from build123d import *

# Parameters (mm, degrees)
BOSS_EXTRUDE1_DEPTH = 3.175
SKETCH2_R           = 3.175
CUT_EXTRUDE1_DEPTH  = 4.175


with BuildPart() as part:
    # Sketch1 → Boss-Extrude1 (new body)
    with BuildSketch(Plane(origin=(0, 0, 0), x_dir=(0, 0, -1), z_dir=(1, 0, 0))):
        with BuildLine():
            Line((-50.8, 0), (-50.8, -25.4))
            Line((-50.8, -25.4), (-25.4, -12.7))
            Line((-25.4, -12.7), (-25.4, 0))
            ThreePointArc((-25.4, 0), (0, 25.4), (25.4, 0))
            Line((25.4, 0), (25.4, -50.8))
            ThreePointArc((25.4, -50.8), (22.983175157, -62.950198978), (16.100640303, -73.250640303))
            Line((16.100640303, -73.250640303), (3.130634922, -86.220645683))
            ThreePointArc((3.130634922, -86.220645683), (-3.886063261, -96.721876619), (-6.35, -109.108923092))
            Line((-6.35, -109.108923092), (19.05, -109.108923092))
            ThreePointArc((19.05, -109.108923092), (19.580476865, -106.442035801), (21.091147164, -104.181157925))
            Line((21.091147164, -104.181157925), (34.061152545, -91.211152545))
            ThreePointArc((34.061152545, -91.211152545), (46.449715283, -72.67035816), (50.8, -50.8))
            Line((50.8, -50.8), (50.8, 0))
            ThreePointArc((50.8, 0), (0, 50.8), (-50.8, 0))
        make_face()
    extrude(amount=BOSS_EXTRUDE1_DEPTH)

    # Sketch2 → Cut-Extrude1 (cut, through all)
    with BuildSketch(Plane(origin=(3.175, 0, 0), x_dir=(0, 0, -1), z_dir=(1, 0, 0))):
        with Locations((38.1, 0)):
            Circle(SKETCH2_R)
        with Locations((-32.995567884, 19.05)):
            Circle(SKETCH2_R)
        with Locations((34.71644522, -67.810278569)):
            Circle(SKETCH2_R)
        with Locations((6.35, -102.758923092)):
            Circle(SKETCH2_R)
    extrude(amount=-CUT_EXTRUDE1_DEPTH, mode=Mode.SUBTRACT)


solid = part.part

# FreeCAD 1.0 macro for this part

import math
import FreeCAD as App
import Part
import Sketcher
from FreeCAD import Vector
Q = App.Units.Quantity

doc = App.newDocument("Part")
body = doc.addObject("PartDesign::Body", "Body")

# Sketch on YZ plane
sketch1 = body.newObject("Sketcher::SketchObject", "Sketch")
sketch1.AttachmentSupport = (doc.getObject("YZ_Plane"), [""])
sketch1.MapMode = "FlatFace"
sketch1.addGeometry([
    Part.LineSegment(Vector(0, 51, 0), Vector(-25, 51, 0)),  # 0
    Part.LineSegment(Vector(-25, 51, 0), Vector(-13, 25, 0)),  # 1
    Part.LineSegment(Vector(-13, 25, 0), Vector(0, 25, 0)),  # 2
    Part.ArcOfCircle(Part.Circle(Vector(0, 0, 0), Vector(0, 0, 1), 25), math.radians(-90), math.radians(90)),  # 3
    Part.LineSegment(Vector(0, -25, 0), Vector(-51, -25, 0)),  # 4
    Part.ArcOfCircle(Part.Circle(Vector(-51, 6, 0), Vector(0, 0, 1), 32), math.radians(-135), math.radians(-90)),  # 5
    Part.LineSegment(Vector(-73, -16, 0), Vector(-86, -3, 0)),  # 6
    Part.ArcOfCircle(Part.Circle(Vector(-109, -26, 0), Vector(0, 0, 1), 32), math.radians(45), math.radians(90)),  # 7
    Part.LineSegment(Vector(-109, 6, 0), Vector(-109, -19, 0)),  # 8
    Part.ArcOfCircle(Part.Circle(Vector(-109, -26, 0), Vector(0, 0, 1), 7), math.radians(45), math.radians(90)),  # 9
    Part.LineSegment(Vector(-104, -21, 0), Vector(-91, -34, 0)),  # 10
    Part.ArcOfCircle(Part.Circle(Vector(-51, 6, 0), Vector(0, 0, 1), 57), math.radians(-135), math.radians(-90)),  # 11
    Part.LineSegment(Vector(-51, -51, 0), Vector(0, -51, 0)),  # 12
    Part.ArcOfCircle(Part.Circle(Vector(0, 0, 0), Vector(0, 0, 1), 51), math.radians(-90), math.radians(90)),  # 13
], False)
sketch1.addConstraint([
    Sketcher.Constraint("Coincident", 0, 2, 1, 1),
    Sketcher.Constraint("Coincident", 1, 2, 2, 1),
    Sketcher.Constraint("Tangent", 2, 2, 3, 2),
    Sketcher.Constraint("Tangent", 3, 1, 4, 1),
    Sketcher.Constraint("Tangent", 4, 2, 5, 2),
    Sketcher.Constraint("Tangent", 5, 1, 6, 1),
    Sketcher.Constraint("Tangent", 6, 2, 7, 1),
    Sketcher.Constraint("Coincident", 7, 2, 8, 1),
    Sketcher.Constraint("Coincident", 8, 2, 9, 2),
    Sketcher.Constraint("Tangent", 9, 1, 10, 1),
    Sketcher.Constraint("Tangent", 10, 2, 11, 1),
    Sketcher.Constraint("Tangent", 11, 2, 12, 1),
    Sketcher.Constraint("Tangent", 12, 2, 13, 1),
    Sketcher.Constraint("Tangent", 13, 2, 0, 1),
    Sketcher.Constraint("Horizontal", 0),
    Sketcher.Constraint("Horizontal", 2),
    Sketcher.Constraint("Horizontal", 4),
    Sketcher.Constraint("Vertical", 8),
    Sketcher.Constraint("Horizontal", 12),
    Sketcher.Constraint("Coincident", 3, 3, -1, 1),
    Sketcher.Constraint("Coincident", 13, 3, -1, 1),
    Sketcher.Constraint("Coincident", 9, 3, 7, 3),
    Sketcher.Constraint("Coincident", 11, 3, 5, 3),
    Sketcher.Constraint("Parallel", 6, 10),
    Sketcher.Constraint("Horizontal", 11, 3, 7, 2),
    Sketcher.Constraint("Vertical", 9, 3, 7, 2),
    Sketcher.Constraint("Equal", 0, 8),
    Sketcher.Constraint("Radius", 3, Q("1 in")),
    Sketcher.Constraint("Radius", 13, Q("2 in")),
    Sketcher.Constraint("DistanceX", 4, 2, 4, 1, Q("2 in")),
    Sketcher.Constraint("Radius", 5, Q("1.25 in")),
    Sketcher.Constraint("DistanceX", 2, 1, 2, 2, Q("0.5 in")),
    Sketcher.Constraint("Angle", 6, Q("135 deg")),
    Sketcher.Constraint("Radius", 7, Q("32.368912 mm")),
])
pad1 = body.newObject("PartDesign::Pad", "Pad")
pad1.Profile = sketch1
pad1.Length = Q("0.125 in")

# Sketch on YZ plane
sketch2 = body.newObject("Sketcher::SketchObject", "Sketch001")
sketch2.AttachmentSupport = (doc.getObject("YZ_Plane"), [""])
sketch2.MapMode = "FlatFace"
sketch2.AttachmentOffset = App.Placement(Vector(0, 0, 0.125 * 25.4), App.Rotation())
sketch2.addGeometry([
    Part.Circle(Vector(0, -38.1, 0), Vector(0, 0, 1), 3.2),
    Part.Circle(Vector(19.1, 33, 0), Vector(0, 0, 1), 3.2),
    Part.Circle(Vector(-67.8, -34.7, 0), Vector(0, 0, 1), 3.2),
    Part.Circle(Vector(-102.8, -6.3, 0), Vector(0, 0, 1), 3.2),
], False)
sketch2.addConstraint([
    Sketcher.Constraint("Equal", 0, 1),
    Sketcher.Constraint("Equal", 1, 2),
    Sketcher.Constraint("Equal", 2, 3),
    Sketcher.Constraint("PointOnObject", 0, 3, -2),
    Sketcher.Constraint("Diameter", 0, Q("0.25 in")),
    Sketcher.Constraint("DistanceY", 0, 3, -1, 1, Q("1.5 in")),
    Sketcher.Constraint("DistanceX", -1, 1, 1, 3, Q("0.75 in")),
    Sketcher.Constraint("DistanceY", 3, 3, -1, 1, Q("0.25 in")),
    Sketcher.Constraint("DistanceX", 2, 3, -1, 1, Q("67.810279 mm")),
    Sketcher.Constraint("DistanceY", -1, 1, 1, 3, Q("32.995568 mm")),
    Sketcher.Constraint("DistanceY", 2, 3, -1, 1, Q("34.716445 mm")),
    Sketcher.Constraint("DistanceX", 3, 3, -1, 1, Q("102.758923 mm")),
])
pocket1 = body.newObject("PartDesign::Pocket", "Pocket")
pocket1.Profile = sketch2
pocket1.Type = "ThroughAll"

doc.recompute()
